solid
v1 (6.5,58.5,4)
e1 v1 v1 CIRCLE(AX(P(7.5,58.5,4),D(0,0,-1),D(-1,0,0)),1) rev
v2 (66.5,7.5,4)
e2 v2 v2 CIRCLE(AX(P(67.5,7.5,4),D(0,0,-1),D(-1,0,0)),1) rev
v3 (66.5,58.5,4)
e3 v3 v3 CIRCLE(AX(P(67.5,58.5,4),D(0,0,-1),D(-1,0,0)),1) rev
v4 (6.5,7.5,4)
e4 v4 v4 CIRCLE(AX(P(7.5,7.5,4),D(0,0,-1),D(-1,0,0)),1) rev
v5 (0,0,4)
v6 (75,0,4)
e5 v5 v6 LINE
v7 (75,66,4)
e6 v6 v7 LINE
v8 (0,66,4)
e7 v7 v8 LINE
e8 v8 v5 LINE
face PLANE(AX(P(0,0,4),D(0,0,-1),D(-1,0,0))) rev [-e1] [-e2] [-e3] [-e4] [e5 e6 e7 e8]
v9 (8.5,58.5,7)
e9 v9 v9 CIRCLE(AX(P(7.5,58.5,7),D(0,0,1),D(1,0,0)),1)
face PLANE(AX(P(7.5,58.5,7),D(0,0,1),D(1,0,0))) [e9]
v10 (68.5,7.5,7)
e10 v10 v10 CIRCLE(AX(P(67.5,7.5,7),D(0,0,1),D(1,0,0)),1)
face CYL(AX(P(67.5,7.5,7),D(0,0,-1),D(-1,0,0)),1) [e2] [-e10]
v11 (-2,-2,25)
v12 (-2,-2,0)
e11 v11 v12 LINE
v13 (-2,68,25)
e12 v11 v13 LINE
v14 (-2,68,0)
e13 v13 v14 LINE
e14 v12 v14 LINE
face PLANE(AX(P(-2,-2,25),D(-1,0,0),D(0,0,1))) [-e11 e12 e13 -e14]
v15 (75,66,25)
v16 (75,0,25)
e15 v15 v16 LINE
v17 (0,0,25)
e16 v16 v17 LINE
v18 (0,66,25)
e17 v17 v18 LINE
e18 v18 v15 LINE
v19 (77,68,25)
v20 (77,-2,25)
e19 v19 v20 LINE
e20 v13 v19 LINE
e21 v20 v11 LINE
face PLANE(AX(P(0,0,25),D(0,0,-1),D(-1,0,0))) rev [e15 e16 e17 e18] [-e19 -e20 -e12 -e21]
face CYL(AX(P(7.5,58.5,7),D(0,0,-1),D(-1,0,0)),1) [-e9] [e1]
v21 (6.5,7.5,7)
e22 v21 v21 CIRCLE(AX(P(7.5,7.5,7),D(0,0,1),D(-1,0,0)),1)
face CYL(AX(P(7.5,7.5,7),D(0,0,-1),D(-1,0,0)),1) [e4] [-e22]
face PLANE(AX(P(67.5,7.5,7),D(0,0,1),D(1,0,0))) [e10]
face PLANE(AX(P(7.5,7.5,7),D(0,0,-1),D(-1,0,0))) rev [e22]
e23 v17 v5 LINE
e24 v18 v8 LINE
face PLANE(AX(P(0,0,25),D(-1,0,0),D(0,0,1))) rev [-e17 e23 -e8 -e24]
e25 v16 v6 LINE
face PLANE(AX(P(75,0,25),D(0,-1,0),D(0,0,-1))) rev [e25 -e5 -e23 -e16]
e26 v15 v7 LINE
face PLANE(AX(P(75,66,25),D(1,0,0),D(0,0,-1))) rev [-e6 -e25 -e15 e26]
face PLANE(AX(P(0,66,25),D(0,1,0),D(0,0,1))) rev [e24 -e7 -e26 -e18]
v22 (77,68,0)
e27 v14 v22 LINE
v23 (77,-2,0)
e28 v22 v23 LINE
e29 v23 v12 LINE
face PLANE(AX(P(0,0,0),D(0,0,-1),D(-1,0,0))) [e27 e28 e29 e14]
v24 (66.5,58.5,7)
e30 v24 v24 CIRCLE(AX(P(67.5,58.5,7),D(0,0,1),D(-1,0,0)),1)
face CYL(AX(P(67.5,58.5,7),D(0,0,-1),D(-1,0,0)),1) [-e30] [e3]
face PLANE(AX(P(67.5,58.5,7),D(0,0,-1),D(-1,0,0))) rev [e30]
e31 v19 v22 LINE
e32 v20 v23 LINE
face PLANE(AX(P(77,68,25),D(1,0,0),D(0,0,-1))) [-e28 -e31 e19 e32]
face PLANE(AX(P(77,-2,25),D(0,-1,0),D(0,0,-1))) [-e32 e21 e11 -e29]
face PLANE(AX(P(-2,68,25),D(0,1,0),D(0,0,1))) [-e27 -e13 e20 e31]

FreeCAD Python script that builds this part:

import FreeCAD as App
import Part
import Sketcher
Q = App.Units.Quantity


def add_polygon(sketch, points):
    """Adds a closed chain of lines whose ends are joined by coincident constraints."""
    first, n = sketch.GeometryCount, len(points)
    for a, b in zip(points, points[1:] + points[:1]):
        sketch.addGeometry(Part.LineSegment(App.Vector(*a, 0), App.Vector(*b, 0)), False)
    for i in range(n):
        sketch.addConstraint(Sketcher.Constraint("Coincident", first + i, 2, first + (i + 1) % n, 1))

doc = App.newDocument("Part")
body = doc.addObject("PartDesign::Body", "Body")

# Sketch on XY plane
sketch1 = body.newObject("Sketcher::SketchObject", "Sketch")
sketch1.AttachmentSupport = (doc.getObject("XY_Plane"), [""])
sketch1.MapMode = "FlatFace"
add_polygon(sketch1, [(0, 66), (0, 0), (75, 0), (75, 66)])  # lines 0-3
sketch1.addConstraint(Sketcher.Constraint("Vertical", 0))
sketch1.addConstraint(Sketcher.Constraint("Horizontal", 1))
sketch1.addConstraint(Sketcher.Constraint("Vertical", 2))
sketch1.addConstraint(Sketcher.Constraint("Horizontal", 3))
sketch1.addConstraint(Sketcher.Constraint("Coincident", 0, 2, -1, 1))
sketch1.addConstraint(Sketcher.Constraint("DistanceX", 1, 1, 1, 2, Q("75 mm")))
sketch1.addConstraint(Sketcher.Constraint("DistanceY", 0, 2, 0, 1, Q("66 mm")))
pad1 = body.newObject("PartDesign::Pad", "Pad")
pad1.Profile = sketch1
pad1.Length = 4

# Sketch on XY plane
sketch2 = body.newObject("Sketcher::SketchObject", "Sketch001")
sketch2.AttachmentSupport = (doc.getObject("XY_Plane"), [""])
sketch2.MapMode = "FlatFace"
sketch2.AttachmentOffset = App.Placement(App.Vector(0, 0, 4), App.Rotation())
sketch2.addGeometry(Part.Circle(App.Vector(67.5, 7.5, 0), App.Vector(0, 0, 1), 1), False)
sketch2.addGeometry(Part.Circle(App.Vector(67.5, 58.5, 0), App.Vector(0, 0, 1), 1), False)
sketch2.addGeometry(Part.Circle(App.Vector(7.5, 58.5, 0), App.Vector(0, 0, 1), 1), False)
sketch2.addGeometry(Part.Circle(App.Vector(7.5, 7.5, 0), App.Vector(0, 0, 1), 1), False)
sketch2.addConstraint(Sketcher.Constraint("Equal", 0, 1))
sketch2.addConstraint(Sketcher.Constraint("Equal", 1, 2))
sketch2.addConstraint(Sketcher.Constraint("Equal", 2, 3))
sketch2.addConstraint(Sketcher.Constraint("Horizontal", 1, 3, 2, 3))
sketch2.addConstraint(Sketcher.Constraint("Horizontal", 0, 3, 3, 3))
sketch2.addConstraint(Sketcher.Constraint("Vertical", 0, 3, 1, 3))
sketch2.addConstraint(Sketcher.Constraint("Vertical", 2, 3, 3, 3))
sketch2.addConstraint(Sketcher.Constraint("Diameter", 0, Q("2 mm")))
sketch2.addConstraint(Sketcher.Constraint("DistanceY", 0, 3, 1, 3, Q("51 mm")))
sketch2.addConstraint(Sketcher.Constraint("DistanceX", 2, 3, 1, 3, Q("60 mm")))
sketch2.addConstraint(Sketcher.Constraint("DistanceX", -1, 1, 0, 3, Q("67.5 mm")))
sketch2.addConstraint(Sketcher.Constraint("DistanceY", -1, 1, 0, 3, Q("7.5 mm")))
pad2 = body.newObject("PartDesign::Pad", "Pad001")
pad2.Profile = sketch2
pad2.Length = 3

# Sketch on XY plane
sketch3 = body.newObject("Sketcher::SketchObject", "Sketch002")
sketch3.AttachmentSupport = (doc.getObject("XY_Plane"), [""])
sketch3.MapMode = "FlatFace"
add_polygon(sketch3, [(77, 68), (77, -2), (-2, -2), (-2, 68)])  # lines 0-3
add_polygon(sketch3, [(0, 0), (75, 0), (75, 66), (0, 66)])  # lines 4-7
sketch3.addConstraint(Sketcher.Constraint("Vertical", 0))
sketch3.addConstraint(Sketcher.Constraint("Horizontal", 1))
sketch3.addConstraint(Sketcher.Constraint("Vertical", 2))
sketch3.addConstraint(Sketcher.Constraint("Horizontal", 3))
sketch3.addConstraint(Sketcher.Constraint("Horizontal", 4))
sketch3.addConstraint(Sketcher.Constraint("Vertical", 5))
sketch3.addConstraint(Sketcher.Constraint("Horizontal", 6))
sketch3.addConstraint(Sketcher.Constraint("Vertical", 7))
sketch3.addConstraint(Sketcher.Constraint("Coincident", 7, 2, -1, 1))
sketch3.addConstraint(Sketcher.Constraint("DistanceX", 1, 2, 1, 1, Q("79 mm")))
sketch3.addConstraint(Sketcher.Constraint("DistanceX", 4, 1, 4, 2, Q("75 mm")))
sketch3.addConstraint(Sketcher.Constraint("DistanceY", 0, 2, 0, 1, Q("70 mm")))
sketch3.addConstraint(Sketcher.Constraint("DistanceY", 5, 1, 5, 2, Q("66 mm")))
sketch3.addConstraint(Sketcher.Constraint("DistanceX", -1, 1, 0, 2, Q("77 mm")))
sketch3.addConstraint(Sketcher.Constraint("DistanceY", 0, 2, -1, 1, Q("2 mm")))
pad3 = body.newObject("PartDesign::Pad", "Pad002")
pad3.Profile = sketch3
pad3.Length = 25

doc.recompute()
